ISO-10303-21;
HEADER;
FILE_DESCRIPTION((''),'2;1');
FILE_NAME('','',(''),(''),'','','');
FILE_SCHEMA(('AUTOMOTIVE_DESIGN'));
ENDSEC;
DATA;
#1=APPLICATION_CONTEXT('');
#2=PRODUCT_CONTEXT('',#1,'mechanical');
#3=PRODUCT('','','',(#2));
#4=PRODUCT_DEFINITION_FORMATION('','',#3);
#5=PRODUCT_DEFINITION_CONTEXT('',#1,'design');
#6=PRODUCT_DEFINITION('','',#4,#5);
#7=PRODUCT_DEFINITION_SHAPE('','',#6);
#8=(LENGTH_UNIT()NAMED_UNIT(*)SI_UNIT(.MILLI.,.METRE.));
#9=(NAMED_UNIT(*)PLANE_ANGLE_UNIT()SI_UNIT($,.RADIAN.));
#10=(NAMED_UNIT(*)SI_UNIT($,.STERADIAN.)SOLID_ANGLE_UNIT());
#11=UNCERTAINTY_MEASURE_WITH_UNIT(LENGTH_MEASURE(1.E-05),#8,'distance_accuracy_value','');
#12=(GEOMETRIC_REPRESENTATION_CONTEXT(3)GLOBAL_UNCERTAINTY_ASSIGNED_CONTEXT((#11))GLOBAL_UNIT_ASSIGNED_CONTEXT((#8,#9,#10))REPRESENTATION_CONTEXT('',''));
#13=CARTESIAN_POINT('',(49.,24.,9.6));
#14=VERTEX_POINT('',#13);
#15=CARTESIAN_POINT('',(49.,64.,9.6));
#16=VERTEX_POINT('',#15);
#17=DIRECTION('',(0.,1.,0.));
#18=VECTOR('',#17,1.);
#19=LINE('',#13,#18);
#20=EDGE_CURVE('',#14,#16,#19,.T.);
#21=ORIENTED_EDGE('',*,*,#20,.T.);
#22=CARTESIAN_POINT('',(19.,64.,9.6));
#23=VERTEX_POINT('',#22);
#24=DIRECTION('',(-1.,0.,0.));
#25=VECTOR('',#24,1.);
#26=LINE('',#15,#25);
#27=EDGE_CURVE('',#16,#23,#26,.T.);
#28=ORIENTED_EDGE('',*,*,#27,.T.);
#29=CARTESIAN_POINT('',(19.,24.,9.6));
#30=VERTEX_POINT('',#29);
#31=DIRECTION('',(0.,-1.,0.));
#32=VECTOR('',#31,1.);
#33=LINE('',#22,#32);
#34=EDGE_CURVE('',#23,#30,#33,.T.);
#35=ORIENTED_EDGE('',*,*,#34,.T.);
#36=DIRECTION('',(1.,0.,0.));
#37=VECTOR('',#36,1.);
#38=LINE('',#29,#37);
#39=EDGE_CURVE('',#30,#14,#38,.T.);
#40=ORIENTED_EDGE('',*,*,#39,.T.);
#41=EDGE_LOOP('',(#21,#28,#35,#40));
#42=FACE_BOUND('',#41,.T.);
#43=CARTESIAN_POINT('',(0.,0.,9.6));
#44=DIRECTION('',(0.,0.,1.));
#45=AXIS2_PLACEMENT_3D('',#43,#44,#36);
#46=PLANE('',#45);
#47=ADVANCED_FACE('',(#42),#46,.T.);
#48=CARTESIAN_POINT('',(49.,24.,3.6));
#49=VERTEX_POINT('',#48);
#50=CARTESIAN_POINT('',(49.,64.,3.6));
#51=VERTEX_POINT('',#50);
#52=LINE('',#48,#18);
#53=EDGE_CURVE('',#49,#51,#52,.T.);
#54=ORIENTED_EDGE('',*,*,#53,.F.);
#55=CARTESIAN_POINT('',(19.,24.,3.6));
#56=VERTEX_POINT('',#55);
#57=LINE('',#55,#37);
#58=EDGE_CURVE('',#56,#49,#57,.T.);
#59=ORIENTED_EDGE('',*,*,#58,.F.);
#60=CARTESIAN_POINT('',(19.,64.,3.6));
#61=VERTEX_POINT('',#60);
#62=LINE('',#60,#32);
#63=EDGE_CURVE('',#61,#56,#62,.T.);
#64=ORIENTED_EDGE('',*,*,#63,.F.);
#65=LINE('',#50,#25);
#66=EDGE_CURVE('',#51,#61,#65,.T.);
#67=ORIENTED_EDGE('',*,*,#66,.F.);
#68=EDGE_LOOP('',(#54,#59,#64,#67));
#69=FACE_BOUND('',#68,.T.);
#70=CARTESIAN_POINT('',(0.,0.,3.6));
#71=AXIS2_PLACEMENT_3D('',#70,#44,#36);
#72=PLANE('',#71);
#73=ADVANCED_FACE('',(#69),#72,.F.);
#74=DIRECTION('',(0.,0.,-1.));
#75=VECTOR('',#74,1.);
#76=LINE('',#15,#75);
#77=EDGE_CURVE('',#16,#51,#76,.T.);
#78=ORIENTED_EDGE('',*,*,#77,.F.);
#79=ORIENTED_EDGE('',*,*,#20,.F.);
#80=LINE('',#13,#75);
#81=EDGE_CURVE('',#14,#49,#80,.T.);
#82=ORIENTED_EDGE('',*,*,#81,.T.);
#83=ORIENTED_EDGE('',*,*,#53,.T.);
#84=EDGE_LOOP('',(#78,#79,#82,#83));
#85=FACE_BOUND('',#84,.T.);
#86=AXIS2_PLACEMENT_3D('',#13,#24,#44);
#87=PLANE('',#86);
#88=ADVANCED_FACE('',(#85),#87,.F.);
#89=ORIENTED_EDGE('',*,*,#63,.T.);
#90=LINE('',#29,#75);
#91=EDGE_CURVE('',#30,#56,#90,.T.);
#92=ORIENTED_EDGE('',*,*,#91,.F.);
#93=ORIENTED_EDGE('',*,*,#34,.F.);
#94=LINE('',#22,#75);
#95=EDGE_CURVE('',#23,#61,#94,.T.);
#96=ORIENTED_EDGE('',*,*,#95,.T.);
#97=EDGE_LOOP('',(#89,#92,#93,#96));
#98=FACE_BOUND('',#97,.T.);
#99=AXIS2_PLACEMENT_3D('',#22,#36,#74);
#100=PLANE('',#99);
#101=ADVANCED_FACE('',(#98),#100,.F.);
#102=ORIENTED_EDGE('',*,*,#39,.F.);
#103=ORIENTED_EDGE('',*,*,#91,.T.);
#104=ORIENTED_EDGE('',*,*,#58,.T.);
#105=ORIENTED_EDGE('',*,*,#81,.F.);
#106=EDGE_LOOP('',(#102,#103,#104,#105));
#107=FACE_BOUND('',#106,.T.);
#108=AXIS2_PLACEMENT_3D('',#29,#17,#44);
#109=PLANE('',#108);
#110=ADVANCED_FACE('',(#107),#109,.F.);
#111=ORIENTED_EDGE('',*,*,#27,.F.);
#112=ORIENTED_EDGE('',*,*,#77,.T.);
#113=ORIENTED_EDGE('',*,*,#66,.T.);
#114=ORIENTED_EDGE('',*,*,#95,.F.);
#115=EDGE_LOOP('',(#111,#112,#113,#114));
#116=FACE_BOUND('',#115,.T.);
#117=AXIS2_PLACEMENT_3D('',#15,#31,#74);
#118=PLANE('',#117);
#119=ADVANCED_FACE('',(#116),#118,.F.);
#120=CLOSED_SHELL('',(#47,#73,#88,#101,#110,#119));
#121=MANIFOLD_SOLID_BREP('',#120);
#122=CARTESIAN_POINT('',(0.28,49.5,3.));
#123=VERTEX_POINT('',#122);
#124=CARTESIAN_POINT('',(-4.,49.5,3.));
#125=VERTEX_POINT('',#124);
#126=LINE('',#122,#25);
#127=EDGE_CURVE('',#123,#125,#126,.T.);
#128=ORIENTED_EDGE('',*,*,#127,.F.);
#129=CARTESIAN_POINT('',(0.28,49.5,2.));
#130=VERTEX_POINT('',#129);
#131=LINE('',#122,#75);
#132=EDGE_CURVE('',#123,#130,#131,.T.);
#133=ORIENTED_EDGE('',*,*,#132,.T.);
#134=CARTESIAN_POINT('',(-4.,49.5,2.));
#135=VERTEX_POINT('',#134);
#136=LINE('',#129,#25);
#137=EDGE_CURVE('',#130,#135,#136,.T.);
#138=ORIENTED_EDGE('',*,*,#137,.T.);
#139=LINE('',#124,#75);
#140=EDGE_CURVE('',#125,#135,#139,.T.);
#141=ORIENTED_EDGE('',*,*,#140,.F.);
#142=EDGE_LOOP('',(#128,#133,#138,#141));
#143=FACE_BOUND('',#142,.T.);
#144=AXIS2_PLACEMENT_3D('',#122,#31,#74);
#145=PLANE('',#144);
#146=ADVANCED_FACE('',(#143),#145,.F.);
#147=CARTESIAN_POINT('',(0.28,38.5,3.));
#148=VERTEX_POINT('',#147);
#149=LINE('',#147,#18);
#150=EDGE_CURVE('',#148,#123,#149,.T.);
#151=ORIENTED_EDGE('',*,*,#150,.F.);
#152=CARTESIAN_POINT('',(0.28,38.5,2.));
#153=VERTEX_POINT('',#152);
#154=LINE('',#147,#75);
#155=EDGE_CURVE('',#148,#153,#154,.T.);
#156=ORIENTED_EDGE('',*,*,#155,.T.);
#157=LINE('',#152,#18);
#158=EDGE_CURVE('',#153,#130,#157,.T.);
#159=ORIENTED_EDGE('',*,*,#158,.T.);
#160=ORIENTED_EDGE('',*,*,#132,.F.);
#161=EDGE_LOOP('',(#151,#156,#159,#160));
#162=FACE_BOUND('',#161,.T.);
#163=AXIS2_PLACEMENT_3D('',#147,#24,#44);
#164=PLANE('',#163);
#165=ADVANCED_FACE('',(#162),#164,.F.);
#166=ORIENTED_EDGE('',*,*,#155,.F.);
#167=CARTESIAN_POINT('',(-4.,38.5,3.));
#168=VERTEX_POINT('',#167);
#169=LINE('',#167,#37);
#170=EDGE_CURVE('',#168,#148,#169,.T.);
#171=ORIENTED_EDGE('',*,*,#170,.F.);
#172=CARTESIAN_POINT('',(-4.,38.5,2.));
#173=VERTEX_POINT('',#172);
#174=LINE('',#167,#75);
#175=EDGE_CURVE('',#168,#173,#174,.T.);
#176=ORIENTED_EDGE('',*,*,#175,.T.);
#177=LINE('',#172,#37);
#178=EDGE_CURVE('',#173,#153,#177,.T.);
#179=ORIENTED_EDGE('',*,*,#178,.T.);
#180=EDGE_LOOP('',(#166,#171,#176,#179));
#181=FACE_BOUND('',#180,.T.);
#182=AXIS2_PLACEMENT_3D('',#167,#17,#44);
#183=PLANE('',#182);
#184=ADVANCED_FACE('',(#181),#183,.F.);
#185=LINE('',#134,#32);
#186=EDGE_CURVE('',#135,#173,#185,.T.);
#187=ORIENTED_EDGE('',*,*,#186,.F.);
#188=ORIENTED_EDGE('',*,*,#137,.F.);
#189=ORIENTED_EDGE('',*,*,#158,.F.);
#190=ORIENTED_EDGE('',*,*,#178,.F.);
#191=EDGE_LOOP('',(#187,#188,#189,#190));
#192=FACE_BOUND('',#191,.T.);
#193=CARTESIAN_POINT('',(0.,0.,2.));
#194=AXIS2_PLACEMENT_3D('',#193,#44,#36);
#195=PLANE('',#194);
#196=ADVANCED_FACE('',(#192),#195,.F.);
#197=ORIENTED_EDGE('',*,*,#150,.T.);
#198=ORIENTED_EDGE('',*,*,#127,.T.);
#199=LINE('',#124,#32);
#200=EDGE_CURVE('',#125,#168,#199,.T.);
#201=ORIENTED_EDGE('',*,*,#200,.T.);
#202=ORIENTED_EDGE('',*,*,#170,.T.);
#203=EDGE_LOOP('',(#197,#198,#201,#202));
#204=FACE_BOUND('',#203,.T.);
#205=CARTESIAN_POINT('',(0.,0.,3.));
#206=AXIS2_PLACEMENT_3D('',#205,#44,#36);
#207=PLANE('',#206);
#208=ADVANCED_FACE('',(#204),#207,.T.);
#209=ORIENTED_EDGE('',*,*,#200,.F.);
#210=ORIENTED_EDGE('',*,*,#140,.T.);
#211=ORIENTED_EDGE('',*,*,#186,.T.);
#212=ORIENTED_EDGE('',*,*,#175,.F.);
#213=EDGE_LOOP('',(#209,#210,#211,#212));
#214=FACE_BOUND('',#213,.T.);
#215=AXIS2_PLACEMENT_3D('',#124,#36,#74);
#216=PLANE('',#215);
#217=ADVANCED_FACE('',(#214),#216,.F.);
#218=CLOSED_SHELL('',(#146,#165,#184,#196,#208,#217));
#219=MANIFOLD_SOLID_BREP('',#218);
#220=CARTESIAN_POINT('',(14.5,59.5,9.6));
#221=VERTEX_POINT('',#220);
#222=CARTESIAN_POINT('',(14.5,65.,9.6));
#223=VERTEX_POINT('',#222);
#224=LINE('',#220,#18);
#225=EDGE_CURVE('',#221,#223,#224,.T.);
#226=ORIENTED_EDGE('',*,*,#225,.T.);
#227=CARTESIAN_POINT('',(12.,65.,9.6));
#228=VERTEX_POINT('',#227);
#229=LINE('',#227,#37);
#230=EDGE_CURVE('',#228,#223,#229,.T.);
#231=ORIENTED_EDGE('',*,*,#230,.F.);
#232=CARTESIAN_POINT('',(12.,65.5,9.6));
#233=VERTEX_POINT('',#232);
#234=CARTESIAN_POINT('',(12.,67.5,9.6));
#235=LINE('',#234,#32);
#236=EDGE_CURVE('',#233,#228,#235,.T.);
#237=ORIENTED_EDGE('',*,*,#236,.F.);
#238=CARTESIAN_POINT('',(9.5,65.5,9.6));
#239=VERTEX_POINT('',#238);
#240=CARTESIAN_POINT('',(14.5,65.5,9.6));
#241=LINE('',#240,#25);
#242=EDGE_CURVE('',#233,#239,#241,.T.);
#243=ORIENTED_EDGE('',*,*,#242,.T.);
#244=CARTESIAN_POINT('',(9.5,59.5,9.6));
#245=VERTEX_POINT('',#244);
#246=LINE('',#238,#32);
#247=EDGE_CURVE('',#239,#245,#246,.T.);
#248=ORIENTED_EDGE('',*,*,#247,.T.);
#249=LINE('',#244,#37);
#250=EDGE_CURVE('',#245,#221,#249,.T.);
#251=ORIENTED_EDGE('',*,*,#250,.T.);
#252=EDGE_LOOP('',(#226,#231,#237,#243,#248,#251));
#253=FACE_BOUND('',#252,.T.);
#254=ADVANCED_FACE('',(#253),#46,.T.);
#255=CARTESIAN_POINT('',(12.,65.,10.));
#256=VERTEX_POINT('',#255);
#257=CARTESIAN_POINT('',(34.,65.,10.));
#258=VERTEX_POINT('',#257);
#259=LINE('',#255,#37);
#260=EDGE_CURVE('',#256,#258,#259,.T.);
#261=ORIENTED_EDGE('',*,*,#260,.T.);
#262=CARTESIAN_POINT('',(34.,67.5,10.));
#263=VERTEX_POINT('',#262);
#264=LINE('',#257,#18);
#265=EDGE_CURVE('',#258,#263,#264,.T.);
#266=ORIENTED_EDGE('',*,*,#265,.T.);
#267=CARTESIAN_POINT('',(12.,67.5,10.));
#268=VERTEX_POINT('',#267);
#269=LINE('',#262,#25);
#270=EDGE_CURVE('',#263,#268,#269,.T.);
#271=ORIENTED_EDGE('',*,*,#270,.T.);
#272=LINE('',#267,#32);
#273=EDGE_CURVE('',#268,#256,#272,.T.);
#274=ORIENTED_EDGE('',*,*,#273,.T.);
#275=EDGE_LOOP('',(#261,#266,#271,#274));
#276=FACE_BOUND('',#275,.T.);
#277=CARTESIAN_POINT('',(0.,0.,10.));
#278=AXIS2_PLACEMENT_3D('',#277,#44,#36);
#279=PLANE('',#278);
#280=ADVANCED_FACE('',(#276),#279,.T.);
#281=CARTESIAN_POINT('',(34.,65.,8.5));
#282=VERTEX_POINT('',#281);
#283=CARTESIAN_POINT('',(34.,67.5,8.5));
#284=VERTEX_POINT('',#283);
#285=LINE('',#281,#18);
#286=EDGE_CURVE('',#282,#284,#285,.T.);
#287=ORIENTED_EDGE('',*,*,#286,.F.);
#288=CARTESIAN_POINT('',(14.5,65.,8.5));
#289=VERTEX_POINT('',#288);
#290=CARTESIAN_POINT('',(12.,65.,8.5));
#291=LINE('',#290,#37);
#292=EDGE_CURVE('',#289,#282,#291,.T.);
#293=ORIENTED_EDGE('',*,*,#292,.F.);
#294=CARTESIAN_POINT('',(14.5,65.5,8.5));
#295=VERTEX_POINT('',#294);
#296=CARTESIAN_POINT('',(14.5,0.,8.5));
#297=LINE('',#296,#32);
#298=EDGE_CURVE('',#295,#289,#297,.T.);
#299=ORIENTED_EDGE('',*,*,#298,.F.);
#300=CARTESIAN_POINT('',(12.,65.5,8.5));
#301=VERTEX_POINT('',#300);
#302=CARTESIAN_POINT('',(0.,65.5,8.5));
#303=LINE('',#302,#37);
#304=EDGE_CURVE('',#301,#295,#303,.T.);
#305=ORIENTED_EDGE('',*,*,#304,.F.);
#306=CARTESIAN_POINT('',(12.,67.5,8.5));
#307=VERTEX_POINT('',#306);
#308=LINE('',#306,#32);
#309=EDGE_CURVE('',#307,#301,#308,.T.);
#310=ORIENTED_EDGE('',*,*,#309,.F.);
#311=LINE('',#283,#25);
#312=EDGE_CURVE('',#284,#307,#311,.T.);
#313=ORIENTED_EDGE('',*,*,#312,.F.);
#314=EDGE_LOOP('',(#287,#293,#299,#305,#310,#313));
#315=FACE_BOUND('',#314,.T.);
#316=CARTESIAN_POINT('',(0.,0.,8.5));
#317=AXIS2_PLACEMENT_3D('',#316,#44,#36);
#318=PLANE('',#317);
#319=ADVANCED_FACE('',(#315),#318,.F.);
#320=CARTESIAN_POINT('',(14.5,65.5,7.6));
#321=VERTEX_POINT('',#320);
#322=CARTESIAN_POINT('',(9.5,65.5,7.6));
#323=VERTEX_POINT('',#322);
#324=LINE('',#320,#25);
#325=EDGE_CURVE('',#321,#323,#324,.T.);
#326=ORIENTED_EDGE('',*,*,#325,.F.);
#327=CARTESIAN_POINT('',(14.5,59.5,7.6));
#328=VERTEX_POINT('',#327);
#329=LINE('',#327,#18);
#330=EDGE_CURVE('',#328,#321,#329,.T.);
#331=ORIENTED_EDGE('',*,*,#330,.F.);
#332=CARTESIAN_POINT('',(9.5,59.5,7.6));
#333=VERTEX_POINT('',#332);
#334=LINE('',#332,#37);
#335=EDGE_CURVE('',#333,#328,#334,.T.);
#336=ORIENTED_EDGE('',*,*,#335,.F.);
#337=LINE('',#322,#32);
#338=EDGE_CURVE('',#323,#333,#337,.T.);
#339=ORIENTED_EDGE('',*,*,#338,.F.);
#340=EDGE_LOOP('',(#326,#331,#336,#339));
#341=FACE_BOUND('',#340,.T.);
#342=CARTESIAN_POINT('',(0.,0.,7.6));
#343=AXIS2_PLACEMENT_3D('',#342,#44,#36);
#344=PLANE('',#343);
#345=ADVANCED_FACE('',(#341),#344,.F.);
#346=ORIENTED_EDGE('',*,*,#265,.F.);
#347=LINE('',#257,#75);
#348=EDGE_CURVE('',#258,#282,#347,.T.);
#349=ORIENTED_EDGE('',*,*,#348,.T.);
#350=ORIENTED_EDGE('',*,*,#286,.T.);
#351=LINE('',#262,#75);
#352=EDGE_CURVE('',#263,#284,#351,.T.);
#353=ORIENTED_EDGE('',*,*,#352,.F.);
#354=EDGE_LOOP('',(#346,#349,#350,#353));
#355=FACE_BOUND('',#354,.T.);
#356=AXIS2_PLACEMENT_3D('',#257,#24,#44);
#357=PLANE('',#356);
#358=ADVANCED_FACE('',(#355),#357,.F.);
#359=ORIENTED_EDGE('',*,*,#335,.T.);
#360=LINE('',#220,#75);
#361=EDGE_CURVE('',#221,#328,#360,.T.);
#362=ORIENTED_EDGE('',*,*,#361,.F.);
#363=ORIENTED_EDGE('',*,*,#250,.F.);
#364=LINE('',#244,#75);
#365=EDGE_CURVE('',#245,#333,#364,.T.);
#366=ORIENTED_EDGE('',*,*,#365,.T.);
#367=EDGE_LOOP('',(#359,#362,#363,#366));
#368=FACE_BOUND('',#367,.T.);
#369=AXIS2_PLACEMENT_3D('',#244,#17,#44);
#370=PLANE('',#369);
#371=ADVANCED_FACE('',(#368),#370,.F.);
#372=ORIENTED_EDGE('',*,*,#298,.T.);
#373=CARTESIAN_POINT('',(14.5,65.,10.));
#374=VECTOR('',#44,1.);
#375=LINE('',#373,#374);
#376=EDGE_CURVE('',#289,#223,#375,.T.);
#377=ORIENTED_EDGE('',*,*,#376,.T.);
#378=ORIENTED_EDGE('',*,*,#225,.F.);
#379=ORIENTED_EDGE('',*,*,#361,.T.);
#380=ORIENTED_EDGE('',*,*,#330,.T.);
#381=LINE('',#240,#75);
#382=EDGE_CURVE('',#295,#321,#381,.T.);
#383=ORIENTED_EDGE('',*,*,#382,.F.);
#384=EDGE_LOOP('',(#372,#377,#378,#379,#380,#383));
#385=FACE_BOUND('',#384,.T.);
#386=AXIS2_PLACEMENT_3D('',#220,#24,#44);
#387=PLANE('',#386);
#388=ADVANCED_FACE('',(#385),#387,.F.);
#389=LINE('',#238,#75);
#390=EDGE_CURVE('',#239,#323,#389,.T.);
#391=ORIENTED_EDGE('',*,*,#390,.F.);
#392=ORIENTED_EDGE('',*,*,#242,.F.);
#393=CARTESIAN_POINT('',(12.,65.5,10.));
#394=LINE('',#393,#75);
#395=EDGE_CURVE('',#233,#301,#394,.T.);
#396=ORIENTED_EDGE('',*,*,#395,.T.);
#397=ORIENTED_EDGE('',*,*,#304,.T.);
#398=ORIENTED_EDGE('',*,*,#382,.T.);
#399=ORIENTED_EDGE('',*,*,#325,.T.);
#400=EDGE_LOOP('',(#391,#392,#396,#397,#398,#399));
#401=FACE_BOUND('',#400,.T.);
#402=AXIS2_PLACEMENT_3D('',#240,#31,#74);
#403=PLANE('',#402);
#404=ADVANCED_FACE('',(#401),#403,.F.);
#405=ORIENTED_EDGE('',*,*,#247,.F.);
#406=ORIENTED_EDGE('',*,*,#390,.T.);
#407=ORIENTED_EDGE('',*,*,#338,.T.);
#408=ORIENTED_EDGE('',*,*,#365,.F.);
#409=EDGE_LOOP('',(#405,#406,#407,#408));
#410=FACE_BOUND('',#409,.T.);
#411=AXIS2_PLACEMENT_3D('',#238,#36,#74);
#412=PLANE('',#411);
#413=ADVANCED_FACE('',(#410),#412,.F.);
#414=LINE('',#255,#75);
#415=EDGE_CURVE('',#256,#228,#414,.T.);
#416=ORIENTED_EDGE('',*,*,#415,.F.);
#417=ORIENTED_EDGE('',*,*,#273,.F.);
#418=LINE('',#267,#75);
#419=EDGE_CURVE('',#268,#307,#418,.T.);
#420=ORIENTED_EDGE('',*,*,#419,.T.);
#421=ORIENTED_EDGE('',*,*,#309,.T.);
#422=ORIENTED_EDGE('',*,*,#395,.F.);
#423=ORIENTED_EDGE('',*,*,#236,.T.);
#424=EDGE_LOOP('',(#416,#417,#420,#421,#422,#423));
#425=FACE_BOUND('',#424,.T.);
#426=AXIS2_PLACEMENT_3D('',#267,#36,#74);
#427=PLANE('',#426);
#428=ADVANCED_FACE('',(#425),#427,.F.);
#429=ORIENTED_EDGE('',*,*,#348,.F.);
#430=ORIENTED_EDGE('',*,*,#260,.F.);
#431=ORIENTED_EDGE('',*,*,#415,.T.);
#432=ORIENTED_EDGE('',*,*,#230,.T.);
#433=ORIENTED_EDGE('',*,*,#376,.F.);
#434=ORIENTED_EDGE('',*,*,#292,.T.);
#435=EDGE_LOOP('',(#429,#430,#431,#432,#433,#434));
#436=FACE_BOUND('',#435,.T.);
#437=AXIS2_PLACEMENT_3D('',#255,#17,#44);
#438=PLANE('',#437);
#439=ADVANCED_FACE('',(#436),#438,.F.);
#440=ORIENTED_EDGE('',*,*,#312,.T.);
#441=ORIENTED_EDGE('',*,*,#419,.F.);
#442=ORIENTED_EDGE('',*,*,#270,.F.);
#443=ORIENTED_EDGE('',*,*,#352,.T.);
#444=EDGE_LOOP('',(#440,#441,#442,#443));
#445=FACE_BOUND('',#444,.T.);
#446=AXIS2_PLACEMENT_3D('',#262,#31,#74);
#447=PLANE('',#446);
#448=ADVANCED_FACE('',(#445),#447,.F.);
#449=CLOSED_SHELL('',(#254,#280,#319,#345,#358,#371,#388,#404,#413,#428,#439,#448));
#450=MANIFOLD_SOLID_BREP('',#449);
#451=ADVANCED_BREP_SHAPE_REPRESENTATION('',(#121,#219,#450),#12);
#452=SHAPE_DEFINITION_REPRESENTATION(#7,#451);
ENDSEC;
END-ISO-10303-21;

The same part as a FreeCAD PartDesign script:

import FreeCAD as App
import Part
import Sketcher

V = App.Vector
Q = App.Units.Quantity

doc = App.newDocument("Part")
body = doc.addObject("PartDesign::Body", "Body")

sketch1 = doc.addObject("Sketcher::SketchObject", "Sketch")
body.addObject(sketch1)
sketch1.AttachmentSupport = (doc.XY_Plane, [""])
sketch1.MapMode = "FlatFace"
sketch1.AttachmentOffset = App.Placement(V(0, 0, 3.6), App.Rotation())
sketch1.addGeometry([
    Part.LineSegment(V(19, 64, 0), V(19, 24, 0)),
    Part.LineSegment(V(19, 24, 0), V(49, 24, 0)),
    Part.LineSegment(V(49, 24, 0), V(49, 64, 0)),
    Part.LineSegment(V(49, 64, 0), V(19, 64, 0)),
], False)
sketch1.addConstraint([
    Sketcher.Constraint("Coincident", 0, 2, 1, 1),
    Sketcher.Constraint("Coincident", 1, 2, 2, 1),
    Sketcher.Constraint("Coincident", 2, 2, 3, 1),
    Sketcher.Constraint("Coincident", 3, 2, 0, 1),
    Sketcher.Constraint("Vertical", 0),
    Sketcher.Constraint("Horizontal", 1),
    Sketcher.Constraint("Vertical", 2),
    Sketcher.Constraint("Horizontal", 3),
    Sketcher.Constraint("DistanceX", 1, 1, 1, 2, Q("30 mm")),
    Sketcher.Constraint("DistanceY", 0, 2, 0, 1, Q("40 mm")),
    Sketcher.Constraint("DistanceX", -1, 1, 0, 2, Q("19 mm")),
    Sketcher.Constraint("DistanceY", -1, 1, 0, 2, Q("24 mm")),
])
pad1 = doc.addObject("PartDesign::Pad", "Pad")
body.addObject(pad1)
pad1.Profile = sketch1
pad1.Length = 6
body2 = doc.addObject("PartDesign::Body", "Body001")

sketch2 = doc.addObject("Sketcher::SketchObject", "Sketch001")
body2.addObject(sketch2)
sketch2.AttachmentSupport = (doc.getObject("XY_Plane001"), [""])
sketch2.MapMode = "FlatFace"
sketch2.AttachmentOffset = App.Placement(V(0, 0, 8.5), App.Rotation())
sketch2.addGeometry([
    Part.LineSegment(V(12, 67.5, 0), V(12, 65, 0)),
    Part.LineSegment(V(12, 65, 0), V(34, 65, 0)),
    Part.LineSegment(V(34, 65, 0), V(34, 67.5, 0)),
    Part.LineSegment(V(34, 67.5, 0), V(12, 67.5, 0)),
], False)
sketch2.addConstraint([
    Sketcher.Constraint("Coincident", 0, 2, 1, 1),
    Sketcher.Constraint("Coincident", 1, 2, 2, 1),
    Sketcher.Constraint("Coincident", 2, 2, 3, 1),
    Sketcher.Constraint("Coincident", 3, 2, 0, 1),
    Sketcher.Constraint("Vertical", 0),
    Sketcher.Constraint("Horizontal", 1),
    Sketcher.Constraint("Vertical", 2),
    Sketcher.Constraint("Horizontal", 3),
    Sketcher.Constraint("DistanceX", 1, 1, 1, 2, Q("22 mm")),
    Sketcher.Constraint("DistanceY", 0, 2, 0, 1, Q("2.5 mm")),
    Sketcher.Constraint("DistanceX", -1, 1, 0, 2, Q("12 mm")),
    Sketcher.Constraint("DistanceY", -1, 1, 0, 2, Q("65 mm")),
])
pad2 = doc.addObject("PartDesign::Pad", "Pad001")
body2.addObject(pad2)
pad2.Profile = sketch2
pad2.Length = 1.5

sketch3 = doc.addObject("Sketcher::SketchObject", "Sketch002")
body2.addObject(sketch3)
sketch3.AttachmentSupport = (doc.getObject("XY_Plane001"), [""])
sketch3.MapMode = "FlatFace"
sketch3.AttachmentOffset = App.Placement(V(0, 0, 7.6), App.Rotation())
sketch3.addGeometry([
    Part.LineSegment(V(10, 66, 0), V(10, 60, 0)),
    Part.LineSegment(V(10, 60, 0), V(14, 60, 0)),
    Part.LineSegment(V(14, 60, 0), V(14, 66, 0)),
    Part.LineSegment(V(14, 66, 0), V(10, 66, 0)),
], False)
sketch3.addConstraint([
    Sketcher.Constraint("Coincident", 0, 2, 1, 1),
    Sketcher.Constraint("Coincident", 1, 2, 2, 1),
    Sketcher.Constraint("Coincident", 2, 2, 3, 1),
    Sketcher.Constraint("Coincident", 3, 2, 0, 1),
    Sketcher.Constraint("Vertical", 0),
    Sketcher.Constraint("Horizontal", 1),
    Sketcher.Constraint("Vertical", 2),
    Sketcher.Constraint("Horizontal", 3),
    Sketcher.Constraint("DistanceX", 1, 1, 1, 2, Q("5 mm")),
    Sketcher.Constraint("DistanceY", 0, 2, 0, 1, Q("6 mm")),
    Sketcher.Constraint("DistanceX", -1, 1, 0, 2, Q("9.5 mm")),
    Sketcher.Constraint("DistanceY", -1, 1, 0, 2, Q("59.5 mm")),
])
pad3 = doc.addObject("PartDesign::Pad", "Pad002")
body2.addObject(pad3)
pad3.Profile = sketch3
pad3.Length = 2
body3 = doc.addObject("PartDesign::Body", "Body002")

sketch4 = doc.addObject("Sketcher::SketchObject", "Sketch003")
body3.addObject(sketch4)
sketch4.AttachmentSupport = (doc.getObject("XY_Plane002"), [""])
sketch4.MapMode = "FlatFace"
sketch4.AttachmentOffset = App.Placement(V(0, 0, 2), App.Rotation())
sketch4.addGeometry([
    Part.LineSegment(V(-4, 49.5, 0), V(-4, 38.5, 0)),
    Part.LineSegment(V(-4, 38.5, 0), V(0.3, 38.5, 0)),
    Part.LineSegment(V(0.3, 38.5, 0), V(0.3, 49.5, 0)),
    Part.LineSegment(V(0.3, 49.5, 0), V(-4, 49.5, 0)),
], False)
sketch4.addConstraint([
    Sketcher.Constraint("Coincident", 0, 2, 1, 1),
    Sketcher.Constraint("Coincident", 1, 2, 2, 1),
    Sketcher.Constraint("Coincident", 2, 2, 3, 1),
    Sketcher.Constraint("Coincident", 3, 2, 0, 1),
    Sketcher.Constraint("Vertical", 0),
    Sketcher.Constraint("Horizontal", 1),
    Sketcher.Constraint("Vertical", 2),
    Sketcher.Constraint("Horizontal", 3),
    Sketcher.Constraint("DistanceY", 0, 2, 0, 1, Q("11 mm")),
    Sketcher.Constraint("DistanceX", 0, 2, -1, 1, Q("4 mm")),
    Sketcher.Constraint("DistanceX", 1, 1, 1, 2, Q("4.28 mm")),
    Sketcher.Constraint("DistanceY", -1, 1, 0, 2, Q("38.5 mm")),
])
pad4 = doc.addObject("PartDesign::Pad", "Pad003")
body3.addObject(pad4)
pad4.Profile = sketch4
pad4.Length = 1

doc.recompute()
